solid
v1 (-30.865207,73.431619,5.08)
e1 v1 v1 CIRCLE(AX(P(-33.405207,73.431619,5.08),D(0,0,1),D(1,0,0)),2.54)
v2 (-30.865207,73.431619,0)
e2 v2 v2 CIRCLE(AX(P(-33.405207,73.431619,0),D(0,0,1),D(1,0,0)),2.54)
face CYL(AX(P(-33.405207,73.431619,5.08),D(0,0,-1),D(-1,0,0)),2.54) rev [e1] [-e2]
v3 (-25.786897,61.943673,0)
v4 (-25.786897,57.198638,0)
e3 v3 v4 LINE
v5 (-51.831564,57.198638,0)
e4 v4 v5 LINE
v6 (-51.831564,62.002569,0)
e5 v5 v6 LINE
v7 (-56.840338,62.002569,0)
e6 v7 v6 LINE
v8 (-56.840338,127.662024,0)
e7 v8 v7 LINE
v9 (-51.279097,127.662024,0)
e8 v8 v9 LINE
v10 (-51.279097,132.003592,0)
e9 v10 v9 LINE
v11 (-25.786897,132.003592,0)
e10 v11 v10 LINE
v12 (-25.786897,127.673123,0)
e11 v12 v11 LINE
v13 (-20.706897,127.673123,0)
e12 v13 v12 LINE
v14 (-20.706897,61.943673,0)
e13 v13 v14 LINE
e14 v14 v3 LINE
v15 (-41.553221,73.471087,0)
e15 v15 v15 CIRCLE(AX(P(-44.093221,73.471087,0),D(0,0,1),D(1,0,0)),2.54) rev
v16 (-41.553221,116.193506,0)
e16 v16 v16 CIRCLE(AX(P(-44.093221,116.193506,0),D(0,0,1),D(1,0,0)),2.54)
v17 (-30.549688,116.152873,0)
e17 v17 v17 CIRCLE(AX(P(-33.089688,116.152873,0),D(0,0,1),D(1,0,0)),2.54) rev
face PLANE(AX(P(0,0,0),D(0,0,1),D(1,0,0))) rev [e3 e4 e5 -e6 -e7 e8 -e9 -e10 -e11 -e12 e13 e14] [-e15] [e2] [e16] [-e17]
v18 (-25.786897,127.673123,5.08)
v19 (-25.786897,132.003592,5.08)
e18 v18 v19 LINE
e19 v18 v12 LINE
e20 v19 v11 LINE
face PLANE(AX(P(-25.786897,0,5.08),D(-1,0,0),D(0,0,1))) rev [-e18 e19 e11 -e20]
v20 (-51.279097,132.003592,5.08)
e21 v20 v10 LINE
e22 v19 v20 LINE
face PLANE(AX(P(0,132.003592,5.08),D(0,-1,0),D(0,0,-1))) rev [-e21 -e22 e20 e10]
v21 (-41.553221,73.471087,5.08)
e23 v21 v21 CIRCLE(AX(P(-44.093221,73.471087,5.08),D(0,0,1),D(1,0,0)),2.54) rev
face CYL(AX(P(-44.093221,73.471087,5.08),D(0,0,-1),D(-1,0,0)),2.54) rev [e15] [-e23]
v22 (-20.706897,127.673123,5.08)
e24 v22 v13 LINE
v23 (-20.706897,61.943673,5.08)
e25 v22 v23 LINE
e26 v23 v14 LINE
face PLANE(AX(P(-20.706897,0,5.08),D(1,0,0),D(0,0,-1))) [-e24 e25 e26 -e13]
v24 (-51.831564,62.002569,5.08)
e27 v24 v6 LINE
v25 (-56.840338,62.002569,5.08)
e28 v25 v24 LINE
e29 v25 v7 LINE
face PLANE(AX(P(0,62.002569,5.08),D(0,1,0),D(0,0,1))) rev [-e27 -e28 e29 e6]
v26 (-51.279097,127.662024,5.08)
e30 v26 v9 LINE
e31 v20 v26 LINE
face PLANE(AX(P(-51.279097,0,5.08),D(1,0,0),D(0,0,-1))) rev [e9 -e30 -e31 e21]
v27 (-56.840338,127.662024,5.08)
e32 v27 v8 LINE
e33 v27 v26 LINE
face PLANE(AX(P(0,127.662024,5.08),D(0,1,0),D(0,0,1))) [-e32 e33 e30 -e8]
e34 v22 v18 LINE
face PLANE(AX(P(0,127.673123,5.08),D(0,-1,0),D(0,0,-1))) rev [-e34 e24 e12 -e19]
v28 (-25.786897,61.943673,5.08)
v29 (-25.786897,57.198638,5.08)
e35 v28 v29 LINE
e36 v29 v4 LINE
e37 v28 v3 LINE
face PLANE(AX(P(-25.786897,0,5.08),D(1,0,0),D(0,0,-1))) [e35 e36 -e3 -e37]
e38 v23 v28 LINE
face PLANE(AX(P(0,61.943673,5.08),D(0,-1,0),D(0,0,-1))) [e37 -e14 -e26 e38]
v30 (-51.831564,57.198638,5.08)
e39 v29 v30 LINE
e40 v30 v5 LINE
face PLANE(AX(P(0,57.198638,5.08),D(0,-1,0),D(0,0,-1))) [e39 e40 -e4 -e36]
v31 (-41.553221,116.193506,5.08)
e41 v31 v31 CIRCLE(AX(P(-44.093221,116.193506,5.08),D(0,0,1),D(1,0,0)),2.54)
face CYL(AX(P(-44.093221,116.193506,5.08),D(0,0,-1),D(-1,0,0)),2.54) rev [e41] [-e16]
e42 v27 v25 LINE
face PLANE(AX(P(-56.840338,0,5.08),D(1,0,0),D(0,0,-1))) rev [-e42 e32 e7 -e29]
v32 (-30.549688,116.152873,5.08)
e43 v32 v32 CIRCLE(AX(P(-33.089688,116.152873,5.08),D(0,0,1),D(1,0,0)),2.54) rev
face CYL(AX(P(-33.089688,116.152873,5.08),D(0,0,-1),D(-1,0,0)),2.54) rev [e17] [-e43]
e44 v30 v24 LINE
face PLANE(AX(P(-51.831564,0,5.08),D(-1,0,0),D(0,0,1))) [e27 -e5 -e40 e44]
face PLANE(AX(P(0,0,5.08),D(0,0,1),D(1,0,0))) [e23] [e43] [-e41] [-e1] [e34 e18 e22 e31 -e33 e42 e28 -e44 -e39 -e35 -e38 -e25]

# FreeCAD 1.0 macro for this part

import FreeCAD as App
import Part
import Sketcher
Q = App.Units.Quantity

doc = App.newDocument("Part")
body = doc.addObject("PartDesign::Body", "Body")

sketch1 = body.newObject("Sketcher::SketchObject", "Sketch")
sketch1.AttachmentSupport = (doc.getObject("XY_Plane"), [""])
sketch1.MapMode = "FlatFace"
sketch1.addGeometry(Part.LineSegment(App.Vector(-20.7, 127.7, 0), App.Vector(-25.8, 127.7, 0)), False)
sketch1.addGeometry(Part.LineSegment(App.Vector(-25.8, 127.7, 0), App.Vector(-25.8, 132, 0)), False)
sketch1.addGeometry(Part.LineSegment(App.Vector(-25.8, 132, 0), App.Vector(-51.3, 132, 0)), False)
sketch1.addGeometry(Part.LineSegment(App.Vector(-51.3, 132, 0), App.Vector(-51.3, 127.7, 0)), False)
sketch1.addGeometry(Part.LineSegment(App.Vector(-51.3, 127.7, 0), App.Vector(-56.8, 127.7, 0)), False)
sketch1.addGeometry(Part.LineSegment(App.Vector(-56.8, 127.7, 0), App.Vector(-56.8, 62, 0)), False)
sketch1.addGeometry(Part.LineSegment(App.Vector(-56.8, 62, 0), App.Vector(-51.8, 62, 0)), False)
sketch1.addGeometry(Part.LineSegment(App.Vector(-51.8, 62, 0), App.Vector(-51.8, 57.2, 0)), False)
sketch1.addGeometry(Part.LineSegment(App.Vector(-51.8, 57.2, 0), App.Vector(-25.8, 57.2, 0)), False)
sketch1.addGeometry(Part.LineSegment(App.Vector(-25.8, 57.2, 0), App.Vector(-25.8, 61.9, 0)), False)
sketch1.addGeometry(Part.LineSegment(App.Vector(-25.8, 61.9, 0), App.Vector(-20.7, 61.9, 0)), False)
sketch1.addGeometry(Part.LineSegment(App.Vector(-20.7, 61.9, 0), App.Vector(-20.7, 127.7, 0)), False)
sketch1.addGeometry(Part.Circle(App.Vector(-44.1, 73.5, 0), App.Vector(0, 0, 1), 2.5), False)
sketch1.addGeometry(Part.Circle(App.Vector(-33.4, 73.4, 0), App.Vector(0, 0, 1), 2.5), False)
sketch1.addGeometry(Part.Circle(App.Vector(-44.1, 116.2, 0), App.Vector(0, 0, 1), 2.5), False)
sketch1.addGeometry(Part.Circle(App.Vector(-33.1, 116.2, 0), App.Vector(0, 0, 1), 2.5), False)
sketch1.addConstraint(Sketcher.Constraint("Coincident", 0, 2, 1, 1))
sketch1.addConstraint(Sketcher.Constraint("Coincident", 1, 2, 2, 1))
sketch1.addConstraint(Sketcher.Constraint("Coincident", 2, 2, 3, 1))
sketch1.addConstraint(Sketcher.Constraint("Coincident", 3, 2, 4, 1))
sketch1.addConstraint(Sketcher.Constraint("Coincident", 4, 2, 5, 1))
sketch1.addConstraint(Sketcher.Constraint("Coincident", 5, 2, 6, 1))
sketch1.addConstraint(Sketcher.Constraint("Coincident", 6, 2, 7, 1))
sketch1.addConstraint(Sketcher.Constraint("Coincident", 7, 2, 8, 1))
sketch1.addConstraint(Sketcher.Constraint("Coincident", 8, 2, 9, 1))
sketch1.addConstraint(Sketcher.Constraint("Coincident", 9, 2, 10, 1))
sketch1.addConstraint(Sketcher.Constraint("Coincident", 10, 2, 11, 1))
sketch1.addConstraint(Sketcher.Constraint("Coincident", 11, 2, 0, 1))
sketch1.addConstraint(Sketcher.Constraint("Horizontal", 0))
sketch1.addConstraint(Sketcher.Constraint("Vertical", 1))
sketch1.addConstraint(Sketcher.Constraint("Horizontal", 2))
sketch1.addConstraint(Sketcher.Constraint("Vertical", 3))
sketch1.addConstraint(Sketcher.Constraint("Horizontal", 4))
sketch1.addConstraint(Sketcher.Constraint("Vertical", 5))
sketch1.addConstraint(Sketcher.Constraint("Horizontal", 6))
sketch1.addConstraint(Sketcher.Constraint("Vertical", 7))
sketch1.addConstraint(Sketcher.Constraint("Horizontal", 8))
sketch1.addConstraint(Sketcher.Constraint("Vertical", 9))
sketch1.addConstraint(Sketcher.Constraint("Horizontal", 10))
sketch1.addConstraint(Sketcher.Constraint("Vertical", 11))
sketch1.addConstraint(Sketcher.Constraint("Equal", 12, 13))
sketch1.addConstraint(Sketcher.Constraint("Equal", 13, 14))
sketch1.addConstraint(Sketcher.Constraint("Equal", 14, 15))
sketch1.addConstraint(Sketcher.Constraint("Vertical", 12, 3, 14, 3))
sketch1.addConstraint(Sketcher.Constraint("Vertical", 1, 2, 8, 2))
sketch1.addConstraint(Sketcher.Constraint("Diameter", 12, Q("0.2 in")))
sketch1.addConstraint(Sketcher.Constraint("DistanceX", 0, 2, 0, 1, Q("0.2 in")))
sketch1.addConstraint(Sketcher.Constraint("DistanceX", 2, 2, 2, 1, 25.4922))
sketch1.addConstraint(Sketcher.Constraint("DistanceX", 4, 2, 4, 1, 5.56124))
sketch1.addConstraint(Sketcher.Constraint("DistanceY", 1, 1, 1, 2, 4.330469))
sketch1.addConstraint(Sketcher.Constraint("DistanceY", 7, 2, 7, 1, 4.803931))
sketch1.addConstraint(Sketcher.Constraint("DistanceY", 11, 1, 11, 2, 65.729449))
sketch1.addConstraint(Sketcher.Constraint("DistanceY", 3, 2, 0, 2, 0.011099))
sketch1.addConstraint(Sketcher.Constraint("DistanceX", 6, 1, 6, 2, 5.008774))
sketch1.addConstraint(Sketcher.Constraint("DistanceY", 5, 2, 5, 1, 65.659455))
sketch1.addConstraint(Sketcher.Constraint("DistanceX", 12, 3, -1, 1, 44.093221))
sketch1.addConstraint(Sketcher.Constraint("DistanceY", -1, 1, 13, 3, 73.431619))
sketch1.addConstraint(Sketcher.Constraint("DistanceY", -1, 1, 1, 2, 132.003592))
sketch1.addConstraint(Sketcher.Constraint("DistanceY", 12, 3, 14, 3, 42.722419))
sketch1.addConstraint(Sketcher.Constraint("DistanceX", 13, 3, 15, 3, 0.315519))
sketch1.addConstraint(Sketcher.Constraint("DistanceX", 15, 3, 0, 2, 7.30279))
sketch1.addConstraint(Sketcher.Constraint("DistanceY", 15, 3, 0, 2, 11.52025))
sketch1.addConstraint(Sketcher.Constraint("DistanceY", 14, 3, 3, 2, 11.468518))
sketch1.addConstraint(Sketcher.Constraint("DistanceX", 13, 3, -1, 1, 33.405207))
pad1 = body.newObject("PartDesign::Pad", "Pad")
pad1.Profile = sketch1
pad1.Length = Q("0.2 in")

doc.recompute()
